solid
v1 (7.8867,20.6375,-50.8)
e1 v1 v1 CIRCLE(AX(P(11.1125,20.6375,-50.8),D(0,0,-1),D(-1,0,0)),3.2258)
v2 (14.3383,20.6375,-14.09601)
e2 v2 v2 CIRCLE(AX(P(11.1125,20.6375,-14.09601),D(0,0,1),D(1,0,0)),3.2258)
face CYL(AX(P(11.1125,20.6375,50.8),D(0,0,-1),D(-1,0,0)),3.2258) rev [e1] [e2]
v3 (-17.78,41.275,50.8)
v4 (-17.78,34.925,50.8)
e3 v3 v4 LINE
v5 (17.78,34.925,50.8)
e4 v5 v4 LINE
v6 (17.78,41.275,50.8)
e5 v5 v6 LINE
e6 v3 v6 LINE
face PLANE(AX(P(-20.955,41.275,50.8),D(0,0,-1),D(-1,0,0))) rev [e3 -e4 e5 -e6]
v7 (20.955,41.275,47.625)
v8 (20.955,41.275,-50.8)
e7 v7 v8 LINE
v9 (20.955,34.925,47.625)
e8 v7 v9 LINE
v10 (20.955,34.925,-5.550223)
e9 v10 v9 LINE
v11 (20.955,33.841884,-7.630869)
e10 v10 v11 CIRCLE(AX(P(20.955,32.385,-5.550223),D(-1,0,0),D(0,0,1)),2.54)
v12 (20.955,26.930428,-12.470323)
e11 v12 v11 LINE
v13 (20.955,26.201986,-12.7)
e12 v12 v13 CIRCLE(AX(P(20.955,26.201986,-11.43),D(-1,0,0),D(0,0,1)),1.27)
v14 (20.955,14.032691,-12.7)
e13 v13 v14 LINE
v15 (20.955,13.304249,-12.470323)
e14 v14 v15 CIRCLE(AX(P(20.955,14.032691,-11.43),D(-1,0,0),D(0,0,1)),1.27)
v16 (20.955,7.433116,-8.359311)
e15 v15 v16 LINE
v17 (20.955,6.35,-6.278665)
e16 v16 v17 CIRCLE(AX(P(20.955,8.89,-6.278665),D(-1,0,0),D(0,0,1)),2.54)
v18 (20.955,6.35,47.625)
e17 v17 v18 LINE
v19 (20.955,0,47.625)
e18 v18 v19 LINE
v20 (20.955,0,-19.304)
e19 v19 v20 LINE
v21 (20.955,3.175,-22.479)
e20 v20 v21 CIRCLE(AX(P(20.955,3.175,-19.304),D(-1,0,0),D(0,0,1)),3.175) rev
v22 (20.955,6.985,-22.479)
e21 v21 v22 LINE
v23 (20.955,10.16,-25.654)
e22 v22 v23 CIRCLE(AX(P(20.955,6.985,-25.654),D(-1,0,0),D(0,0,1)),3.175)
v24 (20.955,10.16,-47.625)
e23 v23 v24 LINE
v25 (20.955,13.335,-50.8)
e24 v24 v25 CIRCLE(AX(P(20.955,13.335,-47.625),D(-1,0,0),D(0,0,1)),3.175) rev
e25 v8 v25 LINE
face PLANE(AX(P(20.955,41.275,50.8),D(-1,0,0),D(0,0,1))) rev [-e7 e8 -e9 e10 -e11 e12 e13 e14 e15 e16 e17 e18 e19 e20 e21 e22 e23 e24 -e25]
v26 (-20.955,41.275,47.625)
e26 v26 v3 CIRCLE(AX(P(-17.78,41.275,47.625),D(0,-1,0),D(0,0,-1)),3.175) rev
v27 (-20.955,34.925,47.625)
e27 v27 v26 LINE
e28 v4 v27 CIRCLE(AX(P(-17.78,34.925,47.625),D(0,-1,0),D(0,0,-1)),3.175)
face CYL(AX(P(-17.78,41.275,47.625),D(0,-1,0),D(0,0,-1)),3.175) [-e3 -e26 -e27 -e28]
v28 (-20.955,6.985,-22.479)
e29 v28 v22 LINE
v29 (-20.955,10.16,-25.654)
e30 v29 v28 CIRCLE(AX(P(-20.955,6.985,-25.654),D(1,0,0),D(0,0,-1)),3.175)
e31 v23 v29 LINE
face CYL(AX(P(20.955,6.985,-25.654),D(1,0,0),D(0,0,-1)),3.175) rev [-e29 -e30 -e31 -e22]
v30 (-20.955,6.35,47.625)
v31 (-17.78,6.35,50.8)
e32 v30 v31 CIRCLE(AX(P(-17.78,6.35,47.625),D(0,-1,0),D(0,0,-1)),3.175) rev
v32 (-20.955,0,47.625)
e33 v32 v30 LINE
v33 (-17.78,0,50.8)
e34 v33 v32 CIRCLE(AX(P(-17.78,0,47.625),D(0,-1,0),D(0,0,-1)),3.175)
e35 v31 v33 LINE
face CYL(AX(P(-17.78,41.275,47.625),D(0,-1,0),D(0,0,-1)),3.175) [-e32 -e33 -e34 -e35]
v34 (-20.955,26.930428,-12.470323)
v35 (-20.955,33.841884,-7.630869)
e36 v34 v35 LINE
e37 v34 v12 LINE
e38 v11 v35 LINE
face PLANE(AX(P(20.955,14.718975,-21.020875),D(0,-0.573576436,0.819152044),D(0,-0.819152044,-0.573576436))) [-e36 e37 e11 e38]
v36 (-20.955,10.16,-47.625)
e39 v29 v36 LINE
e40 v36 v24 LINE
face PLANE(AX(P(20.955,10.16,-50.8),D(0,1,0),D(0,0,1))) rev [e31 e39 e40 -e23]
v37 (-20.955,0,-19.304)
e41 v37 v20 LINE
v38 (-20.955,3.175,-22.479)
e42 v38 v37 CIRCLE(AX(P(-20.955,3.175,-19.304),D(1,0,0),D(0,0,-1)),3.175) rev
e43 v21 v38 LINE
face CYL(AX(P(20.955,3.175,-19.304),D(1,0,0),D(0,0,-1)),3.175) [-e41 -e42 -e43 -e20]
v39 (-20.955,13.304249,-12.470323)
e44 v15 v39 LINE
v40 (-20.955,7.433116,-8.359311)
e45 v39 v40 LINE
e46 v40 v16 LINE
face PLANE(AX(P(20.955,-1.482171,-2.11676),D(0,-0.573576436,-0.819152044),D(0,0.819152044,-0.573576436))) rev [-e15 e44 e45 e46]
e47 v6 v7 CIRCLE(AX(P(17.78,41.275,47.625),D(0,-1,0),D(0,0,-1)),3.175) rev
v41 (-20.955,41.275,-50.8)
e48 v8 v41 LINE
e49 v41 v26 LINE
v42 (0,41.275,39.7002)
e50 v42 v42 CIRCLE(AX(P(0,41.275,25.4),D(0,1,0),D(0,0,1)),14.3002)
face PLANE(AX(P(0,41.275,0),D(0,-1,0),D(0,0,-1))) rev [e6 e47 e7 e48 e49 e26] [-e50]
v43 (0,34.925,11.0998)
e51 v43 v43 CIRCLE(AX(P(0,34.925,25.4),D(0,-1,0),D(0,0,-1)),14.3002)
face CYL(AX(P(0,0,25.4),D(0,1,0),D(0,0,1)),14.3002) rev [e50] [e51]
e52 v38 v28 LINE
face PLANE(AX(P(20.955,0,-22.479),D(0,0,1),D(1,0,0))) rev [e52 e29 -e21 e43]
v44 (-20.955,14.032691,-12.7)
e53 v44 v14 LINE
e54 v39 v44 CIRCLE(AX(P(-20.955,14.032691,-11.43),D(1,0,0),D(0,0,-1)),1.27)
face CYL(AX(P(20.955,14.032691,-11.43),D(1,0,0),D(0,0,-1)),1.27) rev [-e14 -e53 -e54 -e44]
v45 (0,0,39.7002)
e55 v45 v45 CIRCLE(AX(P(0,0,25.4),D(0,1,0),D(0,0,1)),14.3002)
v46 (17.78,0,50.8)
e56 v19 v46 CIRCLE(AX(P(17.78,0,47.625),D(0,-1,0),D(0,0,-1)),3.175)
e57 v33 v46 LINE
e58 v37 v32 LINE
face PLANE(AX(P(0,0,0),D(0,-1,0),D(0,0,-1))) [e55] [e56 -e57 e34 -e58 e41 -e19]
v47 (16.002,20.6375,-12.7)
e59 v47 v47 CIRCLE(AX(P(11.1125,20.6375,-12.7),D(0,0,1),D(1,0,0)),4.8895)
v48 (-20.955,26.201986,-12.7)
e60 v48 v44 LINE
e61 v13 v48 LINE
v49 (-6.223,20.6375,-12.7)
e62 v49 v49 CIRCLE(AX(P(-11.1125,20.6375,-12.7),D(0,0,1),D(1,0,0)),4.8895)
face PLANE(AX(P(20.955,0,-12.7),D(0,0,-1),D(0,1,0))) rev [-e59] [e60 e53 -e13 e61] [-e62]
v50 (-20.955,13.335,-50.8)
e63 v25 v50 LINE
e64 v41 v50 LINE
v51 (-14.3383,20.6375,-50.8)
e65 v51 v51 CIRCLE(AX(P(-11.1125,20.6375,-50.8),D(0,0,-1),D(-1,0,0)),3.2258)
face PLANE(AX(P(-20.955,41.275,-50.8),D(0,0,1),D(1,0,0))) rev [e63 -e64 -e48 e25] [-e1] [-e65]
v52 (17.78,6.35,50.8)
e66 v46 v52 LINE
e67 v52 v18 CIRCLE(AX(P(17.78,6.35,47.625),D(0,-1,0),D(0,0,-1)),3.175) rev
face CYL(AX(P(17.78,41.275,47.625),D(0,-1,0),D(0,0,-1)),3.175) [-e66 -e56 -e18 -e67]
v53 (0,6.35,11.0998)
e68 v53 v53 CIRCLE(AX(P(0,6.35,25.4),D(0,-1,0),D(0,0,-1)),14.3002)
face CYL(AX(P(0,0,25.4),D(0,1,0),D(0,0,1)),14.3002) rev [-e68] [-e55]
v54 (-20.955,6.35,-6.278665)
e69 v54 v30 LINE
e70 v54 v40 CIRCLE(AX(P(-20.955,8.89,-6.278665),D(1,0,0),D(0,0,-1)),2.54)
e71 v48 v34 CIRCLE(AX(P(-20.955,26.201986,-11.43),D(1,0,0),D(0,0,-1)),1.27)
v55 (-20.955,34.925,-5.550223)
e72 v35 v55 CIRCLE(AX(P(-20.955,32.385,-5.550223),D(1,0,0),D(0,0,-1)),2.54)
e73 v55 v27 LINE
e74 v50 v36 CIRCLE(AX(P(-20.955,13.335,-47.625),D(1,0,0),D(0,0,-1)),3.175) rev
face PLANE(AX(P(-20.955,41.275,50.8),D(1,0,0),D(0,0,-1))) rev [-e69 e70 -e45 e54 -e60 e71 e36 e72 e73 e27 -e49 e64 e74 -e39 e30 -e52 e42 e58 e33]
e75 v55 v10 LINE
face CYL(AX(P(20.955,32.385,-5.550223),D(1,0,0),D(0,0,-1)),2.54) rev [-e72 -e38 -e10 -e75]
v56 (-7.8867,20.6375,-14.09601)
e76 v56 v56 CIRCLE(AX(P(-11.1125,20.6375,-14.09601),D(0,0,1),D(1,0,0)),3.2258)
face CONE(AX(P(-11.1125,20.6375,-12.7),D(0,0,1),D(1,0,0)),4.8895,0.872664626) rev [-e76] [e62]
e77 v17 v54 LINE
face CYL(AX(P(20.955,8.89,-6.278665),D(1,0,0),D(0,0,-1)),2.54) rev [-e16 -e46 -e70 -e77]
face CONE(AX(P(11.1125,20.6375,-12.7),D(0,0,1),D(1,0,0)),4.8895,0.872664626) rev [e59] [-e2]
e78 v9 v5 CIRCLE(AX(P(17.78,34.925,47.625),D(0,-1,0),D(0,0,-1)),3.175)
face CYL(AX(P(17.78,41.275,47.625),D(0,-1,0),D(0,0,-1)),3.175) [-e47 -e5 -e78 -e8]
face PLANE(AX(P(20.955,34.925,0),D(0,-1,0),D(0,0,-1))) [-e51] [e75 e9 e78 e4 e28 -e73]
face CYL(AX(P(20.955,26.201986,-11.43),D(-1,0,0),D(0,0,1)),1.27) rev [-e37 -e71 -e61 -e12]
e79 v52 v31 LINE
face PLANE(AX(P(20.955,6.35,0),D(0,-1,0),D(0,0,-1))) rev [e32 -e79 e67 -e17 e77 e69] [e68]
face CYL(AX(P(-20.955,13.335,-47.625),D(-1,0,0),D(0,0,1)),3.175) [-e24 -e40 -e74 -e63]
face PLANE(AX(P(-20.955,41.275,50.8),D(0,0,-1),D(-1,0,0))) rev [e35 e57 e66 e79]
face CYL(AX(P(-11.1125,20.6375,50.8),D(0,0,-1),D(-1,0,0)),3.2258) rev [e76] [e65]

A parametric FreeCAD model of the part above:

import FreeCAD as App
import Part
import Sketcher
from FreeCAD import Vector
Q = App.Units.Quantity


def edges_at(feature, points):
    """Names of the edges that pass closest to the given points."""
    edges = feature.Shape.Edges
    near = lambda p: min(range(len(edges)), key=lambda i: edges[i].distToShape(Part.Vertex(*p))[0])
    return sorted({f"Edge{near(p) + 1}" for p in points})


def add_polygon(sketch, points):
    """Adds a closed chain of lines whose ends are joined by coincident constraints."""
    first, n = sketch.GeometryCount, len(points)
    for a, b in zip(points, points[1:] + points[:1]):
        sketch.addGeometry(Part.LineSegment(App.Vector(*a, 0), App.Vector(*b, 0)), False)
    for i in range(n):
        sketch.addConstraint(Sketcher.Constraint("Coincident", first + i, 2, first + (i + 1) % n, 1))

doc = App.newDocument("Part")
body = doc.addObject("PartDesign::Body", "Body")

# Sketch on XZ plane
sketch1 = body.newObject("Sketcher::SketchObject", "Sketch")
sketch1.AttachmentSupport = (doc.getObject("XZ_Plane"), [""])
sketch1.MapMode = "FlatFace"
add_polygon(sketch1, [(-21, -51), (-21, 51), (21, 51), (21, -51)])  # lines 0-3
sketch1.addConstraint([
    Sketcher.Constraint("Vertical", 0),
    Sketcher.Constraint("Horizontal", 1),
    Sketcher.Constraint("Vertical", 2),
    Sketcher.Constraint("Horizontal", 3),
    Sketcher.Constraint("Symmetric", 0, 2, 2, 2, -1, 1),
    Sketcher.Constraint("DistanceY", 0, 1, 0, 2, Q("4 in")),
    Sketcher.Constraint("DistanceX", 1, 1, 1, 2, Q("1.65 in")),
])
pad1 = body.newObject("PartDesign::Pad", "Pad")
pad1.Profile = sketch1
pad1.Length = Q("1.625 in")
pad1.Reversed = True

# Sketch on YZ plane
sketch2 = body.newObject("Sketcher::SketchObject", "Sketch001")
sketch2.AttachmentSupport = (doc.getObject("YZ_Plane"), [""])
sketch2.MapMode = "FlatFace"
sketch2.AttachmentOffset = App.Placement(Vector(0, 0, -0.825 * 25.4), App.Rotation())
add_polygon(sketch2, [(35, -7), (27, -13), (14, -13), (6, -8), (6, 51), (35, 51)])  # lines 0-5
sketch2.addConstraint([
    Sketcher.Constraint("Horizontal", 1),
    Sketcher.Constraint("Vertical", 3),
    Sketcher.Constraint("Horizontal", 4),
    Sketcher.Constraint("Vertical", 5),
    Sketcher.Constraint("DistanceY", -1, 1, 3, 2, Q("2 in")),
    Sketcher.Constraint("Angle", 0, Q("-145 deg")),
    Sketcher.Constraint("Angle", 2, Q("145 deg")),
    Sketcher.Constraint("Distance", 0, Q("0.4 in")),
    Sketcher.Constraint("DistanceY", 0, 2, -1, 1, Q("0.5 in")),
    Sketcher.Constraint("Distance", 2, Q("0.35 in")),
    Sketcher.Constraint("DistanceX", 4, 1, 4, 2, Q("1.125 in")),
    Sketcher.Constraint("DistanceX", -1, 1, 2, 2, Q("0.25 in")),
])
pocket1 = body.newObject("PartDesign::Pocket", "Pocket")
pocket1.Profile = sketch2
pocket1.Type = "ThroughAll"
pocket1.Reversed = True

# Sketch on XZ plane
sketch3 = body.newObject("Sketcher::SketchObject", "Sketch002")
sketch3.AttachmentSupport = (doc.getObject("XZ_Plane"), [""])
sketch3.MapMode = "FlatFace"
sketch3.AttachmentOffset = App.Placement(Vector(0, 0, -1.625 * 25.4), App.Rotation())
sketch3.addGeometry(Part.Circle(Vector(0, 25, 0), Vector(0, 0, 1), 14), False)
sketch3.addConstraint([
    Sketcher.Constraint("PointOnObject", 0, 3, -2),
    Sketcher.Constraint("Diameter", 0, Q("1.126 in")),
    Sketcher.Constraint("DistanceY", -1, 1, 0, 3, Q("1 in")),
])
pocket2 = body.newObject("PartDesign::Pocket", "Pocket001")
pocket2.Profile = sketch3
pocket2.Length = 69.726834
pocket2.Reversed = True

# Sketch on YZ plane
sketch4 = body.newObject("Sketcher::SketchObject", "Sketch003")
sketch4.AttachmentSupport = (doc.getObject("YZ_Plane"), [""])
sketch4.MapMode = "FlatFace"
sketch4.AttachmentOffset = App.Placement(Vector(0, 0, -0.825 * 25.4), App.Rotation())
add_polygon(sketch4, [(10, -51), (0, -51), (0, -22), (10, -22)])  # lines 0-3
sketch4.addConstraint([
    Sketcher.Constraint("Horizontal", 0),
    Sketcher.Constraint("Vertical", 1),
    Sketcher.Constraint("Horizontal", 2),
    Sketcher.Constraint("Vertical", 3),
    Sketcher.Constraint("PointOnObject", 0, 2, -2),
    Sketcher.Constraint("DistanceX", 0, 2, 0, 1, Q("0.4 in")),
    Sketcher.Constraint("DistanceY", 0, 2, -1, 1, Q("2 in")),
    Sketcher.Constraint("DistanceY", 1, 1, 1, 2, Q("1.115 in")),
])
pocket3 = body.newObject("PartDesign::Pocket", "Pocket002")
pocket3.Profile = sketch4
pocket3.Type = "ThroughAll"
pocket3.Reversed = True

# Sketch on XY plane
sketch5 = body.newObject("Sketcher::SketchObject", "Sketch004")
sketch5.AttachmentSupport = (doc.getObject("XY_Plane"), [""])
sketch5.MapMode = "FlatFace"
sketch5.AttachmentOffset = App.Placement(Vector(0, 0, -2 * 25.4), App.Rotation())
sketch5.addGeometry([
    Part.Circle(Vector(-11.1, 20.6, 0), Vector(0, 0, 1), 3.2),
    Part.Circle(Vector(11.1, 20.6, 0), Vector(0, 0, 1), 3.2),
], False)
sketch5.addConstraint([
    Sketcher.Constraint("Equal", 0, 1),
    Sketcher.Constraint("Symmetric", 0, 3, 1, 3, -2),
    Sketcher.Constraint("Diameter", 0, Q("0.254 in")),
    Sketcher.Constraint("DistanceX", 0, 3, -1, 1, Q("0.4375 in")),
    Sketcher.Constraint("DistanceY", -1, 1, 0, 3, Q("0.8125 in")),
])
pocket4 = body.newObject("PartDesign::Pocket", "Pocket003")
pocket4.Profile = sketch5
pocket4.Type = "ThroughAll"
pocket4.Reversed = True
doc.recompute()

fillet = body.newObject("PartDesign::Fillet", "Fillet")
fillet.Base = (pocket4, edges_at(pocket4, [
    (20.955, 3.175, 50.8),
    (-20.955, 3.175, 50.8),
    (0, 10.16, -50.8),
    (0, 10.16, -22.479),
    (0, 0, -22.479),
    (20.955, 38.1, 50.8),
    (-20.955, 38.1, 50.8),
]))
fillet.Radius = Q("0.125 in")

# Sketch on XY plane
sketch6 = body.newObject("Sketcher::SketchObject", "Sketch005")
sketch6.AttachmentSupport = (doc.getObject("XY_Plane"), [""])
sketch6.MapMode = "FlatFace"
sketch6.AttachmentOffset = App.Placement(Vector(0, 0, -0.5 * 25.4), App.Rotation())
sketch6.addGeometry([
    Part.Circle(Vector(-11.1, 20.6, 0), Vector(0, 0, 1), 2.8),
    Part.Circle(Vector(11.1, 20.6, 0), Vector(0, 0, 1), 2.8),
], False)
sketch6.addConstraint([
    Sketcher.Constraint("Equal", 0, 1),
    Sketcher.Constraint("Symmetric", 0, 3, 1, 3, -2),
    Sketcher.Constraint("Diameter", 0, Q("0.221 in")),
    Sketcher.Constraint("DistanceX", 0, 3, -1, 1, Q("0.4375 in")),
    Sketcher.Constraint("DistanceY", -1, 1, 0, 3, Q("0.8125 in")),
])
doc.recompute()
hole = body.newObject("PartDesign::Hole", "Hole")
hole.Profile = sketch6
hole.ThreadType = "None"
hole.Diameter = Q("0.221 in")
hole.DepthType = "Dimension"
hole.Depth = Q("1.5 in")
hole.DrillPoint = "Angled"
hole.DrillPointAngle = 118
hole.HoleCutType = "Countersink"
hole.HoleCutDiameter = Q("0.385 in")
hole.HoleCutCountersinkAngle = 100
doc.recompute()

fillet2 = body.newObject("PartDesign::Fillet", "Fillet001")
fillet2.Base = (hole, edges_at(hole, [(0, 34.925, -6.872), (0, 6.35, -7.601)]))
fillet2.Radius = Q("0.1 in")
doc.recompute()

fillet3 = body.newObject("PartDesign::Fillet", "Fillet002")
fillet3.Base = (fillet2, edges_at(fillet2, [(0, 13.632, -12.7), (0, 26.602, -12.7)]))
fillet3.Radius = Q("0.05 in")

doc.recompute()
